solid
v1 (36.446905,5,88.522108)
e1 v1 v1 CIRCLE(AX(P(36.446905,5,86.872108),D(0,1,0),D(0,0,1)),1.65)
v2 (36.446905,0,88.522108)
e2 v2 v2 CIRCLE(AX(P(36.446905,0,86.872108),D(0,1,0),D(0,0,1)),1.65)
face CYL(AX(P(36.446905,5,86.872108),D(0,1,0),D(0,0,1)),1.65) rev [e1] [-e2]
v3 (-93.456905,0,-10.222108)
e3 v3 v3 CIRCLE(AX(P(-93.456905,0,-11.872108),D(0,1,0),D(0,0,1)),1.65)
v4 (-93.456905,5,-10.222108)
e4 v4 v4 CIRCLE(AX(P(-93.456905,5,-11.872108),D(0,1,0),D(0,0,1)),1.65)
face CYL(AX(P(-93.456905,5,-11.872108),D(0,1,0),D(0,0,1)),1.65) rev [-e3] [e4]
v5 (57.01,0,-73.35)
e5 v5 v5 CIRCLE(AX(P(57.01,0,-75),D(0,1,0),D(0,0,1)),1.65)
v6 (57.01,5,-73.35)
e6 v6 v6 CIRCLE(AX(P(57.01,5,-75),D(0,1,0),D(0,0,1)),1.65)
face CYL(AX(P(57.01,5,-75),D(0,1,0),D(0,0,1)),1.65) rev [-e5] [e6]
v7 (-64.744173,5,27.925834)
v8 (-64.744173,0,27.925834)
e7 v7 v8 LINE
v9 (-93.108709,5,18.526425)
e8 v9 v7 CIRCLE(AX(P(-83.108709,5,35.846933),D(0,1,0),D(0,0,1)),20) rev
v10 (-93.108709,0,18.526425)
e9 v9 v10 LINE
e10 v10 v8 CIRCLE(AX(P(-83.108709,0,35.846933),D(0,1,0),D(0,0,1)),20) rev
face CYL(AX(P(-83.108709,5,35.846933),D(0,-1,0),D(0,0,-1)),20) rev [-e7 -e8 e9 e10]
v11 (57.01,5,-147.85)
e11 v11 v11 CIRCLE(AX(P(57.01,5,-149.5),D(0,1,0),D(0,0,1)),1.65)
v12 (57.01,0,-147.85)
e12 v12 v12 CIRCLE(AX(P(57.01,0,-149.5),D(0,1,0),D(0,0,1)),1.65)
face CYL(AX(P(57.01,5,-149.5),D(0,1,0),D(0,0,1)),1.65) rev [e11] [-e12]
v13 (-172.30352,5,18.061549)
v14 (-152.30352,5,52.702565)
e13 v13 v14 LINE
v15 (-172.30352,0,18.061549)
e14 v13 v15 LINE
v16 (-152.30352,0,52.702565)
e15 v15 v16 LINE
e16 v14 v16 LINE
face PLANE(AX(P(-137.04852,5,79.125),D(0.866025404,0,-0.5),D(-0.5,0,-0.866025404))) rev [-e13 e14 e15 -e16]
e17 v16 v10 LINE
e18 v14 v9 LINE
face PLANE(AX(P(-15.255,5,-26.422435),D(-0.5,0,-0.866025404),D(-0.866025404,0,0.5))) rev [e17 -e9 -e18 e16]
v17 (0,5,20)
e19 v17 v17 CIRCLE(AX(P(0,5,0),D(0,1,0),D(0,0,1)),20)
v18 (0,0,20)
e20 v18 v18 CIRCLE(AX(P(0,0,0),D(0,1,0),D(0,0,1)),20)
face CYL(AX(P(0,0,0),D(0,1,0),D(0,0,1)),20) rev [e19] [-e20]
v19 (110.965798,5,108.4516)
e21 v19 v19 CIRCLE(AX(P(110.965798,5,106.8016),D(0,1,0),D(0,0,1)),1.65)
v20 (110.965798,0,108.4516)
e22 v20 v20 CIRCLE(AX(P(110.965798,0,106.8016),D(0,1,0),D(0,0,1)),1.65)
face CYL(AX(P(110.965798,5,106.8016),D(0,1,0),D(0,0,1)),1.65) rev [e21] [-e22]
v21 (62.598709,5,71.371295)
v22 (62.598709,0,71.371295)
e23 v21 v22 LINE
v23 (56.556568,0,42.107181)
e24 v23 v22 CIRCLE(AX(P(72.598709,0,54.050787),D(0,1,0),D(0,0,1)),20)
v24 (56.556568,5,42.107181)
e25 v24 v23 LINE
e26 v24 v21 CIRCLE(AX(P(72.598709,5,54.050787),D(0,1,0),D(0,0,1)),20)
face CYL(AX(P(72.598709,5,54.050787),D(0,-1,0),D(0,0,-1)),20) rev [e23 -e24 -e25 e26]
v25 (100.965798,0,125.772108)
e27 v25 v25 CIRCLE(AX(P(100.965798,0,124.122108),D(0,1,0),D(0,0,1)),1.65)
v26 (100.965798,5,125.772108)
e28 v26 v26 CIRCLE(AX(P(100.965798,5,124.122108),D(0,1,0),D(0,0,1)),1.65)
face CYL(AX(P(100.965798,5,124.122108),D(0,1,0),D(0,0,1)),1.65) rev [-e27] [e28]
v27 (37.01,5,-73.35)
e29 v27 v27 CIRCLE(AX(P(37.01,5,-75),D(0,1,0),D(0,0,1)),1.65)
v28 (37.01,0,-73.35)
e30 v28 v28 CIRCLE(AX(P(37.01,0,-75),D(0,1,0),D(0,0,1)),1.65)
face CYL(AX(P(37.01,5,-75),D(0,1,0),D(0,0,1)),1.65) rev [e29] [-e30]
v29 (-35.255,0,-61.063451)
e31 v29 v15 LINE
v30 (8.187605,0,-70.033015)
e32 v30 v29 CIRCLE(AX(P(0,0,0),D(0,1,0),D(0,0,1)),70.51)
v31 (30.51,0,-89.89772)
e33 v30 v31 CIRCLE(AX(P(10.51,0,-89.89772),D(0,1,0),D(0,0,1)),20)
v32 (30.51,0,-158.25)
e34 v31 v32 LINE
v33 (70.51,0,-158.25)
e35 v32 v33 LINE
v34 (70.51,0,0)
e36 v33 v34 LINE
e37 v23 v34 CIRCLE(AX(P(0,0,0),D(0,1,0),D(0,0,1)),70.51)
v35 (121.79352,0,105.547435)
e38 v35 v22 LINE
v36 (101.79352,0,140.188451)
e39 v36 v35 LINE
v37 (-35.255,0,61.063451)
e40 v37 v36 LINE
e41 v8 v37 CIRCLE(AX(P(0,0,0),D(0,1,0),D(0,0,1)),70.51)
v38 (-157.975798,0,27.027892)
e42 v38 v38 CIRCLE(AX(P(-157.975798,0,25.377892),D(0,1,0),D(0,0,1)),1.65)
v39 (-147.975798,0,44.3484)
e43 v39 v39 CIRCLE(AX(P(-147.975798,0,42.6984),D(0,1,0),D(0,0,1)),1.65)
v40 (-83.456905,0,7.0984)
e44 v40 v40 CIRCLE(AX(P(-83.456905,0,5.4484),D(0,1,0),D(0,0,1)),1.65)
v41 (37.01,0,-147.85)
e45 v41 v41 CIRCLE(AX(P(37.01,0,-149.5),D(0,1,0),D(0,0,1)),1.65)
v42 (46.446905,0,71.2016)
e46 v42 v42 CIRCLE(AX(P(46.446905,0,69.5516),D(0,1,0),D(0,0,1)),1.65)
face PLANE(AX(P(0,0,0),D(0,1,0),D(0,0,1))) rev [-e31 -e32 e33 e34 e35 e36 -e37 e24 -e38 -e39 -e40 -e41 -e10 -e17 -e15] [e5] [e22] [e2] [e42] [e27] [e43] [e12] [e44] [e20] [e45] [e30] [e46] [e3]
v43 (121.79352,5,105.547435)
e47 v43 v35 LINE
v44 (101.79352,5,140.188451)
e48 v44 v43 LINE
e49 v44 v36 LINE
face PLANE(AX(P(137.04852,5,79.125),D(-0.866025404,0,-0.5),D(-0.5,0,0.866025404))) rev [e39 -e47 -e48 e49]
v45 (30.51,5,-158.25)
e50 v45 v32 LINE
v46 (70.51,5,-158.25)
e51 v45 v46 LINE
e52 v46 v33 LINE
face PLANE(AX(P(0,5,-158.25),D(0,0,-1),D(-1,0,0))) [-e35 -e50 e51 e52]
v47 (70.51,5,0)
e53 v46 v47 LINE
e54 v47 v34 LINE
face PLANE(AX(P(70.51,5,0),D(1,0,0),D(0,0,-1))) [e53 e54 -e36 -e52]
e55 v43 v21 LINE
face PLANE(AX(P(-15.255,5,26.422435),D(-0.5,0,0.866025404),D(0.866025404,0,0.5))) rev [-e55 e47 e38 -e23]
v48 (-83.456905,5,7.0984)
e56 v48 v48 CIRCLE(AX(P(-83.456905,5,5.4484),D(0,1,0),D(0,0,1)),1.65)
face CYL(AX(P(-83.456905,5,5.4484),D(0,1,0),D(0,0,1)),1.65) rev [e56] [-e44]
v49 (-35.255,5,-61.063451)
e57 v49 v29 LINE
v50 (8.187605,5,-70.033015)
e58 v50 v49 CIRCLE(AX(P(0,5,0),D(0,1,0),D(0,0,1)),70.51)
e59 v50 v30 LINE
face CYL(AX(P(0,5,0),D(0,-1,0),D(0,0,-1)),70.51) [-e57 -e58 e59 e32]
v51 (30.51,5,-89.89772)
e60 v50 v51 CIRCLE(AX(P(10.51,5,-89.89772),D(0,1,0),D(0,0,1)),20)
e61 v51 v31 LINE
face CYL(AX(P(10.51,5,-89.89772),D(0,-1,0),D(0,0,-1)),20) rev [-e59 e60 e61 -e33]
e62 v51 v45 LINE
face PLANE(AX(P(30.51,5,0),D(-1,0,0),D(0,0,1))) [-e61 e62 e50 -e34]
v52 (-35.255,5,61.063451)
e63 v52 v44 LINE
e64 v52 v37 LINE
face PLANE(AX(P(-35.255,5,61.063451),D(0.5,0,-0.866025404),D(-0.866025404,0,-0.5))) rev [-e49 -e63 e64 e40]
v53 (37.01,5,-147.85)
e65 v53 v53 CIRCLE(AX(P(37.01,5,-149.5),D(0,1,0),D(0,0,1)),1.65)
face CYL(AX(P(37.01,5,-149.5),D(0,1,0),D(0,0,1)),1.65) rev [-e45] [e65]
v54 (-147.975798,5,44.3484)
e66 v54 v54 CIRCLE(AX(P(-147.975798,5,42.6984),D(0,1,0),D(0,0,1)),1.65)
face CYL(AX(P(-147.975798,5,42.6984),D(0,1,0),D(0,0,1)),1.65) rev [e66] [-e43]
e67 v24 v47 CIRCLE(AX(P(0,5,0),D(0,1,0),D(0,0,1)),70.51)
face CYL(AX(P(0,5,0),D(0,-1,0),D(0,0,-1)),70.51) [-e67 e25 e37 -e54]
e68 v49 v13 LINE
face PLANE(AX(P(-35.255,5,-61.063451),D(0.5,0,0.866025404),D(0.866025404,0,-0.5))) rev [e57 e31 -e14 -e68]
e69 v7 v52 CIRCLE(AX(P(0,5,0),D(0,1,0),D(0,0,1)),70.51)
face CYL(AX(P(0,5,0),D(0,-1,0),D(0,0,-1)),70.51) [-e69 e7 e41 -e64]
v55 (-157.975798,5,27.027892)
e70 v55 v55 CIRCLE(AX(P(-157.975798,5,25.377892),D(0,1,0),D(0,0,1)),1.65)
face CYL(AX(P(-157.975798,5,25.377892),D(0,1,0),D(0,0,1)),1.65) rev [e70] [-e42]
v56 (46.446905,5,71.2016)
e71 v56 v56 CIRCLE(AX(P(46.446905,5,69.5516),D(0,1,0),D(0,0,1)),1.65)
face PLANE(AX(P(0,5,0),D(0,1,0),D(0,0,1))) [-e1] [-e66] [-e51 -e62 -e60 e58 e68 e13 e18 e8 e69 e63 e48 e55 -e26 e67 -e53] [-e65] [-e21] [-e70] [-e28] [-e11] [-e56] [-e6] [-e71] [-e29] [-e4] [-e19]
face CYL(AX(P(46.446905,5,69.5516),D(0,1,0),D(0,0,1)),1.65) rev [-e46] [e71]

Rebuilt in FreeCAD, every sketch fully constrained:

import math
import FreeCAD as App
import Part
import Sketcher
from FreeCAD import Vector
Q = App.Units.Quantity

doc = App.newDocument("Part")
body = doc.addObject("PartDesign::Body", "Body")

sketch1 = body.newObject("Sketcher::SketchObject", "Sketch")
sketch1.AttachmentSupport = (doc.getObject("XZ_Plane"), [""])
sketch1.MapMode = "FlatFace"
sketch1.addGeometry([
    Part.LineSegment(Vector(-35, -61, 0), Vector(-172, 18, 0)),
    Part.LineSegment(Vector(-172, 18, 0), Vector(-152, 53, 0)),
    Part.LineSegment(Vector(-152, 53, 0), Vector(-93, 19, 0)),
    Part.ArcOfCircle(Part.Circle(Vector(-83, 36, 0), Vector(0, 0, 1), 20), math.radians(-120), math.radians(-23)),
    Part.ArcOfCircle(Part.Circle(Vector(0, 0, 0), Vector(0, 0, 1), 71), math.radians(120), math.radians(157)),
    Part.LineSegment(Vector(-35, 61, 0), Vector(102, 140, 0)),
    Part.LineSegment(Vector(102, 140, 0), Vector(122, 106, 0)),
    Part.LineSegment(Vector(122, 106, 0), Vector(63, 71, 0)),
    Part.ArcOfCircle(Part.Circle(Vector(73, 54, 0), Vector(0, 0, 1), 20), math.radians(120), math.radians(217)),
    Part.ArcOfCircle(Part.Circle(Vector(0, 0, 0), Vector(0, 0, 1), 71), math.radians(0), math.radians(37)),
    Part.LineSegment(Vector(71, 0, 0), Vector(71, -158, 0)),
    Part.LineSegment(Vector(71, -158, 0), Vector(31, -158, 0)),
    Part.LineSegment(Vector(31, -158, 0), Vector(31, -90, 0)),
    Part.ArcOfCircle(Part.Circle(Vector(11, -90, 0), Vector(0, 0, 1), 20), math.radians(0), math.radians(97)),
    Part.ArcOfCircle(Part.Circle(Vector(0, 0, 0), Vector(0, 0, 1), 71), math.radians(-120), math.radians(-83)),
], False)
sketch1.addConstraint([
    Sketcher.Constraint("Coincident", 0, 2, 1, 1),
    Sketcher.Constraint("Coincident", 1, 2, 2, 1),
    Sketcher.Constraint("Tangent", 2, 2, 3, 1),
    Sketcher.Constraint("Tangent", 3, 2, 4, 2),
    Sketcher.Constraint("Tangent", 4, 1, 5, 1),
    Sketcher.Constraint("Coincident", 5, 2, 6, 1),
    Sketcher.Constraint("Coincident", 6, 2, 7, 1),
    Sketcher.Constraint("Tangent", 7, 2, 8, 1),
    Sketcher.Constraint("Tangent", 8, 2, 9, 2),
    Sketcher.Constraint("Tangent", 9, 1, 10, 1),
    Sketcher.Constraint("Coincident", 10, 2, 11, 1),
    Sketcher.Constraint("Coincident", 11, 2, 12, 1),
    Sketcher.Constraint("Tangent", 12, 2, 13, 1),
    Sketcher.Constraint("Tangent", 13, 2, 14, 2),
    Sketcher.Constraint("Tangent", 14, 1, 0, 1),
    Sketcher.Constraint("Vertical", 10),
    Sketcher.Constraint("Horizontal", 11),
    Sketcher.Constraint("Vertical", 12),
    Sketcher.Constraint("Coincident", 4, 3, -1, 1),
    Sketcher.Constraint("Coincident", 9, 3, -1, 1),
    Sketcher.Constraint("Coincident", 14, 3, -1, 1),
    Sketcher.Constraint("Equal", 3, 8),
    Sketcher.Constraint("Equal", 4, 9),
    Sketcher.Constraint("Equal", 8, 13),
    Sketcher.Constraint("Equal", 9, 14),
    Sketcher.Constraint("Perpendicular", 0, 1),
    Sketcher.Constraint("Perpendicular", 1, 2),
    Sketcher.Constraint("Perpendicular", 5, 6),
    Sketcher.Constraint("Perpendicular", 6, 7),
    Sketcher.Constraint("Vertical", 4, 1, 14, 1),
    Sketcher.Constraint("Equal", 0, 5),
    Sketcher.Constraint("Equal", 1, 6),
    Sketcher.Constraint("Radius", 3, 20.0),
    Sketcher.Constraint("DistanceX", 11, 2, 11, 1, 40.0),
    Sketcher.Constraint("Angle", 0, Q("150 deg")),
    Sketcher.Constraint("Radius", 4, 70.51),
    Sketcher.Constraint("Distance", 1, 40.0),
    Sketcher.Constraint("DistanceY", 10, 2, 10, 1, 158.25),
    Sketcher.Constraint("Distance", 0, 158.25),
])
pad1 = body.newObject("PartDesign::Pad", "Pad")
pad1.Profile = sketch1
pad1.Length = 5
pad1.Reversed = True

sketch2 = body.newObject("Sketcher::SketchObject", "Sketch001")
sketch2.AttachmentSupport = (doc.getObject("XZ_Plane"), [""])
sketch2.MapMode = "FlatFace"
sketch2.AttachmentOffset = App.Placement(Vector(0, 0, -5), App.Rotation())
sketch2.addGeometry(Part.Circle(Vector(0, 0, 0), Vector(0, 0, 1), 20), False)
sketch2.addConstraint([
    Sketcher.Constraint("Coincident", 0, 3, -1, 1),
    Sketcher.Constraint("Diameter", 0, 40.0),
])
pocket1 = body.newObject("PartDesign::Pocket", "Pocket")
pocket1.Profile = sketch2
pocket1.Type = "ThroughAll"
pocket1.Reversed = True

sketch3 = body.newObject("Sketcher::SketchObject", "Sketch002")
sketch3.AttachmentSupport = (doc.getObject("XZ_Plane"), [""])
sketch3.MapMode = "FlatFace"
sketch3.AttachmentOffset = App.Placement(Vector(0, 0, -5), App.Rotation())
sketch3.addGeometry([
    Part.Circle(Vector(57, -149.5, 0), Vector(0, 0, 1), 1.6),
    Part.Circle(Vector(37, -75, 0), Vector(0, 0, 1), 1.6),
    Part.Circle(Vector(37, -149.5, 0), Vector(0, 0, 1), 1.6),
    Part.Circle(Vector(57, -75, 0), Vector(0, 0, 1), 1.6),
    Part.Circle(Vector(101, 124.1, 0), Vector(0, 0, 1), 1.6),
    Part.Circle(Vector(46.4, 69.6, 0), Vector(0, 0, 1), 1.6),
    Part.Circle(Vector(111, 106.8, 0), Vector(0, 0, 1), 1.6),
    Part.Circle(Vector(36.4, 86.9, 0), Vector(0, 0, 1), 1.6),
    Part.Circle(Vector(-158, 25.4, 0), Vector(0, 0, 1), 1.6),
    Part.Circle(Vector(-83.5, 5.4, 0), Vector(0, 0, 1), 1.6),
    Part.Circle(Vector(-148, 42.7, 0), Vector(0, 0, 1), 1.6),
    Part.Circle(Vector(-93.5, -11.9, 0), Vector(0, 0, 1), 1.6),
], False)
sketch3.addConstraint([
    Sketcher.Constraint("Equal", 0, 1),
    Sketcher.Constraint("Equal", 1, 2),
    Sketcher.Constraint("Equal", 2, 3),
    Sketcher.Constraint("Equal", 3, 4),
    Sketcher.Constraint("Equal", 4, 5),
    Sketcher.Constraint("Equal", 5, 6),
    Sketcher.Constraint("Equal", 6, 7),
    Sketcher.Constraint("Equal", 7, 8),
    Sketcher.Constraint("Equal", 8, 9),
    Sketcher.Constraint("Equal", 9, 10),
    Sketcher.Constraint("Equal", 10, 11),
    Sketcher.Constraint("Horizontal", 0, 3, 2, 3),
    Sketcher.Constraint("Horizontal", 1, 3, 3, 3),
    Sketcher.Constraint("Vertical", 1, 3, 2, 3),
    Sketcher.Constraint("Vertical", 0, 3, 3, 3),
    Sketcher.Constraint("Diameter", 0, 3.3),
    Sketcher.Constraint("DistanceY", 1, 3, -1, 1, 75.0),
    Sketcher.Constraint("DistanceX", 1, 3, 0, 3, 20.0),
    Sketcher.Constraint("DistanceX", 4, 3, 6, 3, 10.0),
    Sketcher.Constraint("DistanceX", 7, 3, 5, 3, 10.0),
    Sketcher.Constraint("DistanceX", 8, 3, 10, 3, 10.0),
    Sketcher.Constraint("DistanceX", 11, 3, 9, 3, 10.0),
    Sketcher.Constraint("DistanceY", 0, 3, -1, 1, 149.5),
    Sketcher.Constraint("DistanceX", -1, 1, 0, 3, 57.01),
    Sketcher.Constraint("DistanceY", 5, 3, 6, 3, 37.25),
    Sketcher.Constraint("DistanceY", 7, 3, 4, 3, 37.25),
    Sketcher.Constraint("DistanceY", 9, 3, 10, 3, 37.25),
    Sketcher.Constraint("DistanceY", 11, 3, 8, 3, 37.25),
    Sketcher.Constraint("DistanceY", -1, 1, 5, 3, 69.5516),
    Sketcher.Constraint("DistanceY", -1, 1, 9, 3, 5.4484),
    Sketcher.Constraint("DistanceY", -1, 1, 4, 3, 124.122108),
    Sketcher.Constraint("DistanceY", -1, 1, 8, 3, 25.377892),
    Sketcher.Constraint("DistanceX", 9, 3, 5, 3, 129.903811),
    Sketcher.Constraint("DistanceX", -1, 1, 4, 3, 100.965798),
    Sketcher.Constraint("DistanceX", -1, 1, 5, 3, 46.446905),
    Sketcher.Constraint("DistanceX", 8, 3, -1, 1, 157.975798),
])
doc.recompute()
hole = body.newObject("PartDesign::Hole", "Hole")
hole.Profile = sketch3
hole.ThreadType = "None"
hole.Diameter = 3.3
hole.DepthType = "ThroughAll"
hole.Reversed = True

doc.recompute()
